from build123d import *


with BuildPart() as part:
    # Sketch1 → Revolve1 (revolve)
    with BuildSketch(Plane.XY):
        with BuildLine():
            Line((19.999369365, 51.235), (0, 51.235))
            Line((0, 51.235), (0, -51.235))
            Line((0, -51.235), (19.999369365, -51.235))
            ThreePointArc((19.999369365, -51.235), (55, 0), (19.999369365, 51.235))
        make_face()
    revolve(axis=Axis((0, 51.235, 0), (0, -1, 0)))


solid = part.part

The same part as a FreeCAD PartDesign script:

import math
import FreeCAD as App
import Part
import Sketcher

doc = App.newDocument("Part")
params = doc.addObject("Spreadsheet::Sheet", "Params")
for row, (alias, value) in enumerate([
    ("sketch1_radius", "55 mm"),
    ("sketch1_height", "102.47 mm"),
    ("revolution_angle", "360 deg"),
], start=1):
    params.set(f"A{row}", alias)
    params.set(f"B{row}", "=" + value)
    params.setAlias(f"B{row}", alias)

body = doc.addObject("PartDesign::Body", "Body")

# Sketch on XY plane
sketch1 = body.newObject("Sketcher::SketchObject", "Sketch")
sketch1.AttachmentSupport = (doc.getObject("XY_Plane"), [""])
sketch1.MapMode = "FlatFace"
sketch1.addGeometry([
    Part.LineSegment(App.Vector(20, 51, 0), App.Vector(0, 51, 0)),
    Part.LineSegment(App.Vector(0, 51, 0), App.Vector(0, -51, 0)),
    Part.LineSegment(App.Vector(0, -51, 0), App.Vector(20, -51, 0)),
    Part.ArcOfCircle(Part.Circle(App.Vector(0, 0, 0), App.Vector(0, 0, 1), 55), math.radians(-69), math.radians(69)),
], False)
sketch1.addConstraint([
    Sketcher.Constraint("Coincident", 0, 2, 1, 1),
    Sketcher.Constraint("Coincident", 1, 2, 2, 1),
    Sketcher.Constraint("Coincident", 2, 2, 3, 1),
    Sketcher.Constraint("Coincident", 3, 2, 0, 1),
    Sketcher.Constraint("Horizontal", 0),
    Sketcher.Constraint("Vertical", 1),
    Sketcher.Constraint("Horizontal", 2),
    Sketcher.Constraint("Coincident", 3, 3, -1, 1),
    Sketcher.Constraint("Symmetric", 0, 2, 1, 2, -1, 1),
    Sketcher.Constraint("Radius", 3, 55.0),
    Sketcher.Constraint("DistanceY", 1, 2, 1, 1, 102.47),
])
sketch1.setExpression("Constraints[9]", "Params.sketch1_radius")
sketch1.setExpression("Constraints[10]", "Params.sketch1_height")
revolution = body.newObject("PartDesign::Revolution", "Revolution")
revolution.Profile = sketch1
revolution.ReferenceAxis = (sketch1, ["V_Axis"])
revolution.setExpression("Angle", "Params.revolution_angle")

doc.recompute()
